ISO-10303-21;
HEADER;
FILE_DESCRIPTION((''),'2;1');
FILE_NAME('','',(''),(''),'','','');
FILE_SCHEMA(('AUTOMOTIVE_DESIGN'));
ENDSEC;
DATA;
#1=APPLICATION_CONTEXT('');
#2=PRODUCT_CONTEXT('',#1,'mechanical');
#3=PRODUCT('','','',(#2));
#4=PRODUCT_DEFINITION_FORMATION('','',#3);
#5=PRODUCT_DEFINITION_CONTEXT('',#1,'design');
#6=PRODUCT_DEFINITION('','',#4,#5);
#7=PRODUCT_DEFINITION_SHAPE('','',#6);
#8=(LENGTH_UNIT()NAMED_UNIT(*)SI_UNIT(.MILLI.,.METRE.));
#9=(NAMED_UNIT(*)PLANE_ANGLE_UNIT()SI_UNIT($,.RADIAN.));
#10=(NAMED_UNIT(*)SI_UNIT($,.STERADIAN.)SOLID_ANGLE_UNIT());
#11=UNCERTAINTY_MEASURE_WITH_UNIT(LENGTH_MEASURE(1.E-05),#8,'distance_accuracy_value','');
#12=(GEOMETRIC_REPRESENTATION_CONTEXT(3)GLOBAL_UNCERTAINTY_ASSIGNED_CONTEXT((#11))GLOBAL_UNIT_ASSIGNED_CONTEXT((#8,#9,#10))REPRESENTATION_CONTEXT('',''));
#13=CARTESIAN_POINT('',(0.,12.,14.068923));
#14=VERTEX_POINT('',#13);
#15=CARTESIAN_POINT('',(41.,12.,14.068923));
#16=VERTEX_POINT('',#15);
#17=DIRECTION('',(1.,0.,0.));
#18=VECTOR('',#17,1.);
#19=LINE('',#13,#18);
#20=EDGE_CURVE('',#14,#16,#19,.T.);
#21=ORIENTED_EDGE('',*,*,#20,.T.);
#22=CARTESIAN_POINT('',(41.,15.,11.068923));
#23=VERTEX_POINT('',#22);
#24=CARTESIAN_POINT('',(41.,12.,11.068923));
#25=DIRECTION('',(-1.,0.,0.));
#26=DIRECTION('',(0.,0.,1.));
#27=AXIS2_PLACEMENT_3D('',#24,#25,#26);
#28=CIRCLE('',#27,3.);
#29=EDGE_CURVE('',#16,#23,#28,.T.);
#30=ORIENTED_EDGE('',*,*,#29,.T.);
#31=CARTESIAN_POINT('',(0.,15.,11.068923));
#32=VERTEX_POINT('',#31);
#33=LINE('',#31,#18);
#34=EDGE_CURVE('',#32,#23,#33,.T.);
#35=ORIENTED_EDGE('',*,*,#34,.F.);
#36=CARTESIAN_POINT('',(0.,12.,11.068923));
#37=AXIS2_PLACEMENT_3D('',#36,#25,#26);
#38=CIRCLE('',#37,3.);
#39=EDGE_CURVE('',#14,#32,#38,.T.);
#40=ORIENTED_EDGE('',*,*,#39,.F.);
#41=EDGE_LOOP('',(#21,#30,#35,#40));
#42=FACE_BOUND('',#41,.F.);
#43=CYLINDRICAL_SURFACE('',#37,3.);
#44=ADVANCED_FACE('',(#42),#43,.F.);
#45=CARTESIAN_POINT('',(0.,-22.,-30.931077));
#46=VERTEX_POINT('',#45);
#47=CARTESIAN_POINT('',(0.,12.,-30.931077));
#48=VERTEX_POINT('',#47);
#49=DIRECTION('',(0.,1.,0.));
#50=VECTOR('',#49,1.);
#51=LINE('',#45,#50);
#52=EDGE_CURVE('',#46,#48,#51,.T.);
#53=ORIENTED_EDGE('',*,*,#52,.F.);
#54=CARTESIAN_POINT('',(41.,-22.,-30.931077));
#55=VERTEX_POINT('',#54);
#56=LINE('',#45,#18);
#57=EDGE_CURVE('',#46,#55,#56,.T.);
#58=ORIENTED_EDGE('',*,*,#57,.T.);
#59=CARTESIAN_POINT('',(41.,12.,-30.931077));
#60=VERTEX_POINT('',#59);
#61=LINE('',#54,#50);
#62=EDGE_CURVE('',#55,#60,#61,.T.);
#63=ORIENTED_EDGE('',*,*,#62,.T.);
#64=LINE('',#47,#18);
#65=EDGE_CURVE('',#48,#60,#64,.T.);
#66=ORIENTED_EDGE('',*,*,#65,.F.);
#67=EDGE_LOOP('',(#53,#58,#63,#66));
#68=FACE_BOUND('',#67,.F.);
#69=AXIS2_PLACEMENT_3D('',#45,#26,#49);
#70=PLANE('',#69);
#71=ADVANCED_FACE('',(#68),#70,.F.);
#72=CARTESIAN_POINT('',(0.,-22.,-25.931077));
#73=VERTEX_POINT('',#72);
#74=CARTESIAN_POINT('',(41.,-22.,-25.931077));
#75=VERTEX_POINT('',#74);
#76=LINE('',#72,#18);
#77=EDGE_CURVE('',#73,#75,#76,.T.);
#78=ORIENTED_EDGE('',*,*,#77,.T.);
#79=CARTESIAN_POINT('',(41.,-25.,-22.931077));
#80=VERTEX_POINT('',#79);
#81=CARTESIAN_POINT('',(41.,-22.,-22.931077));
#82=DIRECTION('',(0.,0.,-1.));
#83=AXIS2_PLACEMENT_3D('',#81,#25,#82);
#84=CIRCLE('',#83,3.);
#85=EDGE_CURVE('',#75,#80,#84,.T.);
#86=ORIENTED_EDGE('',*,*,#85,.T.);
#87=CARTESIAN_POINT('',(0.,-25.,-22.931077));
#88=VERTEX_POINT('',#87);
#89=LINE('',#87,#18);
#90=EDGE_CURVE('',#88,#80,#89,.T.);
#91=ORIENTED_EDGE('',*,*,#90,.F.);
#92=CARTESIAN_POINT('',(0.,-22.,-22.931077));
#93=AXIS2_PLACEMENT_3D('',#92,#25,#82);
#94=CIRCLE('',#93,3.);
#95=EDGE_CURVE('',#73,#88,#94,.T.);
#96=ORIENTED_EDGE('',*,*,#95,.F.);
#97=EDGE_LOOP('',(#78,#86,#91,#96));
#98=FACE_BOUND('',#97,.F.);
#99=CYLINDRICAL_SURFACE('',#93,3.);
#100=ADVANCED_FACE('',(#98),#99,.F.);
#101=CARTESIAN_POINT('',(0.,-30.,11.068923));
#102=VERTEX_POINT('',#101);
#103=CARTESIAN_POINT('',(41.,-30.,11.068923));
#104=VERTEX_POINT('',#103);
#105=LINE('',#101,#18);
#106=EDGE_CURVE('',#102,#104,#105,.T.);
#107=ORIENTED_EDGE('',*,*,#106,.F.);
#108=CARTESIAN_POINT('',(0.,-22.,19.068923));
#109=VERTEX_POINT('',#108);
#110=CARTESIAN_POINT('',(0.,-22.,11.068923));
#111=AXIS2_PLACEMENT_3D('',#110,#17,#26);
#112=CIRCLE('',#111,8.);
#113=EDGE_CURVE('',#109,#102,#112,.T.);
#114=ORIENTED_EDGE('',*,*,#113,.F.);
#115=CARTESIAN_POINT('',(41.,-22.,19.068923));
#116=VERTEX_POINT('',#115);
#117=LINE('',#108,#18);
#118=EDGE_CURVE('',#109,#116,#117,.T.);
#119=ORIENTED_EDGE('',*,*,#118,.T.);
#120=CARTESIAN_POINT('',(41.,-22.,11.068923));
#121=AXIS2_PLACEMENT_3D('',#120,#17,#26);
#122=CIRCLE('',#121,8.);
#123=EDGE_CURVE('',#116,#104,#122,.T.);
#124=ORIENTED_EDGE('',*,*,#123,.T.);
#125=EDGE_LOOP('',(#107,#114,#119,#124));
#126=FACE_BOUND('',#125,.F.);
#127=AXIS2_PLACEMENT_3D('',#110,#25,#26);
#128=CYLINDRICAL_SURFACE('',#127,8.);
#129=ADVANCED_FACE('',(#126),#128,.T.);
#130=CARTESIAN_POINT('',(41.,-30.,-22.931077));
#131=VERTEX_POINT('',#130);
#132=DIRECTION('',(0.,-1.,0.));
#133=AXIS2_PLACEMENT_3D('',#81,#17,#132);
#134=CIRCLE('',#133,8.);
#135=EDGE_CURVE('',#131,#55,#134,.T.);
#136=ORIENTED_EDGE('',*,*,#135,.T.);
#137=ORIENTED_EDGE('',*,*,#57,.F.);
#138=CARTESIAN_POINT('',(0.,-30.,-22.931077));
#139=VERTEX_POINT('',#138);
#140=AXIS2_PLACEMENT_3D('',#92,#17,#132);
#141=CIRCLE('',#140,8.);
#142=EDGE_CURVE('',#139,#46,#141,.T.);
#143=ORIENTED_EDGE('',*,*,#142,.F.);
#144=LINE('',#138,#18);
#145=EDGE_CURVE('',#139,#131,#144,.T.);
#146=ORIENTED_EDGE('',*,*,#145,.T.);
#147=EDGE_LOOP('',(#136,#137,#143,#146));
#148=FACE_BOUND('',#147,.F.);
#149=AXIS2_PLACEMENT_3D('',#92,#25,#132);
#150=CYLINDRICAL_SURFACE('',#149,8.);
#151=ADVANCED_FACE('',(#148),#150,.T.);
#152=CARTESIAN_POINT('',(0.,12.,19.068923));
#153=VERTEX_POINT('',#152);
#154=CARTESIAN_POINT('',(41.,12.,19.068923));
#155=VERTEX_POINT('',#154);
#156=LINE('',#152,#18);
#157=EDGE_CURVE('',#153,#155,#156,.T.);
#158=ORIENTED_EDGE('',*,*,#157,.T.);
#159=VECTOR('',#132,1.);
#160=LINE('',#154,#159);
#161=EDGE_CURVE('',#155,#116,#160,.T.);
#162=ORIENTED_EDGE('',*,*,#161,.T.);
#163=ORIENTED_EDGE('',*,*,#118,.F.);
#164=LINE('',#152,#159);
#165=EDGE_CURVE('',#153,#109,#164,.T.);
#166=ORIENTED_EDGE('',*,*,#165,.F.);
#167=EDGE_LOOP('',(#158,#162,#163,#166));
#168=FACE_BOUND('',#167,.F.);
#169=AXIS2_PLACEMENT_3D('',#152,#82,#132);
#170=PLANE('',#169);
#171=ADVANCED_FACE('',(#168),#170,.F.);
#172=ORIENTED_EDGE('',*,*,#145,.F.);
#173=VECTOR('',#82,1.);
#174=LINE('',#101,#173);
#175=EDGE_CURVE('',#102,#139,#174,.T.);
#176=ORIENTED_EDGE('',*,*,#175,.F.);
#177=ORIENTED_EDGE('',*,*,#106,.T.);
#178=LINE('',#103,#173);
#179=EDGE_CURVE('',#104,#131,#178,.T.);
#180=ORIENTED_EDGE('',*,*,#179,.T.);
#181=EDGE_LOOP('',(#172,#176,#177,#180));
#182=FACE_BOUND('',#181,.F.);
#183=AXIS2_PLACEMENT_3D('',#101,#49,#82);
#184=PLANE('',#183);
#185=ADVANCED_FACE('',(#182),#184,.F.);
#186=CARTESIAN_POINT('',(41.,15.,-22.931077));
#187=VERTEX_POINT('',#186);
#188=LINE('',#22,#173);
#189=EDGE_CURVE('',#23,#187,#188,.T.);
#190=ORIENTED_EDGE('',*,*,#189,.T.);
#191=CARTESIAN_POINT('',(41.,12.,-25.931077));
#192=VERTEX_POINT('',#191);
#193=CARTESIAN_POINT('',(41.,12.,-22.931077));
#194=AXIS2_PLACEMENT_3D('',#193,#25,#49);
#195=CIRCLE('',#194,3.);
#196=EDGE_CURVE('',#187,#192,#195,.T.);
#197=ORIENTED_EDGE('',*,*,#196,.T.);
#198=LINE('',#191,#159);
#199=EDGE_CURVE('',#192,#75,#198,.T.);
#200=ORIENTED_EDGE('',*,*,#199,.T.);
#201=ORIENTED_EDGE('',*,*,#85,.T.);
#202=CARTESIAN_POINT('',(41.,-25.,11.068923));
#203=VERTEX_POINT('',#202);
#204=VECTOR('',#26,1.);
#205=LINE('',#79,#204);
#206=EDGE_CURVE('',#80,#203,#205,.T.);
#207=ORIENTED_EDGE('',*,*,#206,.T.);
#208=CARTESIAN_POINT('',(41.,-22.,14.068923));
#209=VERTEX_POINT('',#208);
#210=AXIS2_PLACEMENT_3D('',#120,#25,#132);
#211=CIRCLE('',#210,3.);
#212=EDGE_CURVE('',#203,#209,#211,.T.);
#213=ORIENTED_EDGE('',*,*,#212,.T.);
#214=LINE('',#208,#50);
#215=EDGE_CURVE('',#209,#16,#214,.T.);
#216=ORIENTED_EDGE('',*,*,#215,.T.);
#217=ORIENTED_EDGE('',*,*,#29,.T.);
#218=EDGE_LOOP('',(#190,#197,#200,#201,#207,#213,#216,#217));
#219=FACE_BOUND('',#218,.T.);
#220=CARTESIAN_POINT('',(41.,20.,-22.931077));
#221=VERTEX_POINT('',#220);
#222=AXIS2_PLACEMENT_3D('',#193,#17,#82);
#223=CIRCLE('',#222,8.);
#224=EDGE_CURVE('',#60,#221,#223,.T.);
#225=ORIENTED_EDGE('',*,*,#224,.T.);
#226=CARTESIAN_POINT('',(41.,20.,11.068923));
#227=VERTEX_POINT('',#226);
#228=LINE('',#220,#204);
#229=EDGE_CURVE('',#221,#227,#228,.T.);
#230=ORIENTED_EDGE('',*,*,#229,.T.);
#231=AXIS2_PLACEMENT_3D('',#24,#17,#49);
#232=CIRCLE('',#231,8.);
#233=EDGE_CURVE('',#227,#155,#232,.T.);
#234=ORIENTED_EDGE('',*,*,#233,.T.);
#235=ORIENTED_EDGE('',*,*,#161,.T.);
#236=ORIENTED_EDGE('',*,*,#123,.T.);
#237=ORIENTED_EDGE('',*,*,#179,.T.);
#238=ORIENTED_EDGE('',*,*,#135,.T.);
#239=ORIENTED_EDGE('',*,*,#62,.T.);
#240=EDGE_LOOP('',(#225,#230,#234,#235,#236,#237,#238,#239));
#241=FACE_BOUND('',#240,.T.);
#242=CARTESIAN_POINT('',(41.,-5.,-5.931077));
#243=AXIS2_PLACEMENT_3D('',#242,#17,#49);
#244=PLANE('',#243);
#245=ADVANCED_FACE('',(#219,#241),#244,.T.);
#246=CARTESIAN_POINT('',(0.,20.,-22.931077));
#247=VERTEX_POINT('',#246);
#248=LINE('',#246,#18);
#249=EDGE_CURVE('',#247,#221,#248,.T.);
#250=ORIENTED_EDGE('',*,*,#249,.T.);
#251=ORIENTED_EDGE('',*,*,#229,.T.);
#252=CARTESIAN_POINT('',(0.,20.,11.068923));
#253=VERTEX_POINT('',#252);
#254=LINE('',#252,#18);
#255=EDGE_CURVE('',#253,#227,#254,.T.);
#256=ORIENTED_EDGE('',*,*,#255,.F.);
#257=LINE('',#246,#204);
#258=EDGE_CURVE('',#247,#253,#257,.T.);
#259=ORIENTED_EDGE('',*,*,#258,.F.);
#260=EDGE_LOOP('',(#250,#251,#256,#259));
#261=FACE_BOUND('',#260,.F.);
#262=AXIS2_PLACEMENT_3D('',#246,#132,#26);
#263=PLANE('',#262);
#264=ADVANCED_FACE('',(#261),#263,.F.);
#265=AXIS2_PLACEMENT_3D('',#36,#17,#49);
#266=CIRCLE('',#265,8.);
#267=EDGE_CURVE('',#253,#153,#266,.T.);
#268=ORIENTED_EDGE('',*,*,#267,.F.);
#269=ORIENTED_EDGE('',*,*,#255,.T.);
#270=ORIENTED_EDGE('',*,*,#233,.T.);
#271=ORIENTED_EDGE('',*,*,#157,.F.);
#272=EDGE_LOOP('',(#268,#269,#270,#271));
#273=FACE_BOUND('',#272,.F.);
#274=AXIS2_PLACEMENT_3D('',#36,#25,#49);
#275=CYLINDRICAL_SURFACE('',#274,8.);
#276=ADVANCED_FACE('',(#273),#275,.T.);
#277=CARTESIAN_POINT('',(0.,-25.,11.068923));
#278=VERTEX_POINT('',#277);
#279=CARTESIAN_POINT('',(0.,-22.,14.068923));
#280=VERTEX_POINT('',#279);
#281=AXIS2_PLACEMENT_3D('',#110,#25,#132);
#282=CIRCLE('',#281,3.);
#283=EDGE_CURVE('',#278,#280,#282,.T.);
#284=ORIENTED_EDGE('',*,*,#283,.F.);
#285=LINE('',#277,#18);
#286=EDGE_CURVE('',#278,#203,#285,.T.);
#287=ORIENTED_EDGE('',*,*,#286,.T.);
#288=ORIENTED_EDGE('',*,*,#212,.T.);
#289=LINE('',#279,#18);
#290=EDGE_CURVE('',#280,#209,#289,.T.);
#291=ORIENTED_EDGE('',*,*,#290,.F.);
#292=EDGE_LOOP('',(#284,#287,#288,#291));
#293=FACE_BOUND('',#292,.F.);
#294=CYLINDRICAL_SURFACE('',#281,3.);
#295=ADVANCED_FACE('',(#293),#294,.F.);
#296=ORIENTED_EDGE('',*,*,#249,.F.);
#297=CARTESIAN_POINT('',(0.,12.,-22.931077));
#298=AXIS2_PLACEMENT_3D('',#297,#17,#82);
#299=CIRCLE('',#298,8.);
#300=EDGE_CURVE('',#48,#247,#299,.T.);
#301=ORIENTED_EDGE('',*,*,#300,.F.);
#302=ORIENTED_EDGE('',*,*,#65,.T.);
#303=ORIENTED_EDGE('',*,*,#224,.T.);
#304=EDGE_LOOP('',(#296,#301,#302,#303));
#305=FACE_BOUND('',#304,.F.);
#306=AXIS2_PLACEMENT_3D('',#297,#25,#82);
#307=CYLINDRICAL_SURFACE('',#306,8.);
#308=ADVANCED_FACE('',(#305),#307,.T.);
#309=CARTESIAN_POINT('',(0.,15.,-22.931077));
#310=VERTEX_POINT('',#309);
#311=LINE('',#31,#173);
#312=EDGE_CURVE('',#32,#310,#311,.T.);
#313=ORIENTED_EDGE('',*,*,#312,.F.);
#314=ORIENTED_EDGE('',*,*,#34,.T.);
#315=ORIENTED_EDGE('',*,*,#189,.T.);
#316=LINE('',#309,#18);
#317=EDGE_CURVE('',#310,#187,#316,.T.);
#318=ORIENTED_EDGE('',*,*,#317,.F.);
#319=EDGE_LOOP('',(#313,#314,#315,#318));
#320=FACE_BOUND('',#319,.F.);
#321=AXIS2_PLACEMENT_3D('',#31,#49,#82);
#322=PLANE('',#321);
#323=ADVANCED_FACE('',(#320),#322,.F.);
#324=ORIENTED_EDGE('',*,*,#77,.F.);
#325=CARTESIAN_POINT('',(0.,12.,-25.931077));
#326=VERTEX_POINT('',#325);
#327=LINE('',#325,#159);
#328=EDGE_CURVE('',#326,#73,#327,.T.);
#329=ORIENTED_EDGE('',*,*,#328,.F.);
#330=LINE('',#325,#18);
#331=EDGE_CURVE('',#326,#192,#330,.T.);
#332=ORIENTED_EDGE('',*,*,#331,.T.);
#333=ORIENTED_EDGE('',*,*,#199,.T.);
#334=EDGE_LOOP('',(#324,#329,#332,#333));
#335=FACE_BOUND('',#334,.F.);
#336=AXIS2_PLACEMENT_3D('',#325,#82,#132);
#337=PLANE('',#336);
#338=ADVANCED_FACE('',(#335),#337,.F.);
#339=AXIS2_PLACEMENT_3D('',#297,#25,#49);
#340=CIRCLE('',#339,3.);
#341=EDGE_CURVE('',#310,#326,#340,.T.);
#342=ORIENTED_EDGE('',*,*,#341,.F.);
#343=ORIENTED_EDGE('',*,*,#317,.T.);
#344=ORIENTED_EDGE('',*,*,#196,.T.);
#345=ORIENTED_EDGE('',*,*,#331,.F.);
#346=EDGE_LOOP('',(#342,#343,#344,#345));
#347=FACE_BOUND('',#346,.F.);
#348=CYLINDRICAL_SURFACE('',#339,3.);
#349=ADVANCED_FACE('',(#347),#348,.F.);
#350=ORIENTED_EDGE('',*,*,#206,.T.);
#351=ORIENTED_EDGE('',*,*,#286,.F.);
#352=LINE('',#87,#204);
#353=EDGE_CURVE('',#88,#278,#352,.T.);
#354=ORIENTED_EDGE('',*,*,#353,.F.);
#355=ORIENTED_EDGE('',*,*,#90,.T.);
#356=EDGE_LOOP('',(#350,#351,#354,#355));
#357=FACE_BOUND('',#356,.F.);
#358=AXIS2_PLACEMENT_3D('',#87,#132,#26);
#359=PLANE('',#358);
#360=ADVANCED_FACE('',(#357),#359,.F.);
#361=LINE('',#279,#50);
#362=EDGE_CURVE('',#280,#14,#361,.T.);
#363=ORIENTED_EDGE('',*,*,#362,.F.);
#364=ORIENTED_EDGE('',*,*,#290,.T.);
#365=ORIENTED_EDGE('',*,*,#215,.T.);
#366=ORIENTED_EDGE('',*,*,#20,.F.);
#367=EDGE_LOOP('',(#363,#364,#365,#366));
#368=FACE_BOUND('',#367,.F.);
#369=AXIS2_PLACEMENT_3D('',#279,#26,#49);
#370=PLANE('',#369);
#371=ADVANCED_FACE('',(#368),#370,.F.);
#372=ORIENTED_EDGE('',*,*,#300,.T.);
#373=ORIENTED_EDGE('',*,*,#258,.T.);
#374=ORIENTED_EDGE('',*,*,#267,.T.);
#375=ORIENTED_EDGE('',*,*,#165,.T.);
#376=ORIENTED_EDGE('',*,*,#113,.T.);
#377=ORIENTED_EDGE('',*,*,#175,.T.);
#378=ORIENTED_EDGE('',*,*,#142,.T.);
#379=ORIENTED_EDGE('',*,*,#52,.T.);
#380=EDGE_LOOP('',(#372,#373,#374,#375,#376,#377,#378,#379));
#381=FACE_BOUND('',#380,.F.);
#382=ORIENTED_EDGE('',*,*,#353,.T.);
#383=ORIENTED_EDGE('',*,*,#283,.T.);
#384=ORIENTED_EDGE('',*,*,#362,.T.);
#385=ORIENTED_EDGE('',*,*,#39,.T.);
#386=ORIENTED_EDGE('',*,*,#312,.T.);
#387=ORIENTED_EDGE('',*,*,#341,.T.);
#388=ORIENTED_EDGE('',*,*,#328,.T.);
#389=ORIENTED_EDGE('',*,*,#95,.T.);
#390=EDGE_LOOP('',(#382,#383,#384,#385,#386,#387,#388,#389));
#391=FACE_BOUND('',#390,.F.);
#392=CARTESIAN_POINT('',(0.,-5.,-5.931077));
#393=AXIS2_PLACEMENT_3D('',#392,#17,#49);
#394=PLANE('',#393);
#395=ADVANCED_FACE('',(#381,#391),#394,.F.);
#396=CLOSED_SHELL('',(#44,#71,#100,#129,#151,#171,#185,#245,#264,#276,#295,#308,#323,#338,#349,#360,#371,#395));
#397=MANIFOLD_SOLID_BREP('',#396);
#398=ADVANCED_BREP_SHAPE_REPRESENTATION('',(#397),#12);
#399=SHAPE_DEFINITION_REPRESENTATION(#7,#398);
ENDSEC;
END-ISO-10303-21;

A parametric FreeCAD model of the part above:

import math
import FreeCAD as App
import Part
import Sketcher

V = App.Vector
Q = App.Units.Quantity

doc = App.newDocument("Part")
body = doc.addObject("PartDesign::Body", "Body")

sketch1 = body.newObject("Sketcher::SketchObject", "Sketch")
sketch1.AttachmentSupport = (doc.getObject("YZ_Plane"), [""])
sketch1.MapMode = "FlatFace"
sketch1.addGeometry(Part.LineSegment(V(20, -22.931077, 0), V(20, 11.068923, 0)), False)
sketch1.addGeometry(Part.ArcOfCircle(Part.Circle(V(12, 11.068923, 0), V(0, 0, 1), 8), math.radians(0), math.radians(90)), False)
sketch1.addGeometry(Part.LineSegment(V(12, 19.068923, 0), V(-22, 19.068923, 0)), False)
sketch1.addGeometry(Part.ArcOfCircle(Part.Circle(V(-22, 11.068923, 0), V(0, 0, 1), 8), math.radians(90), math.radians(180)), False)
sketch1.addGeometry(Part.LineSegment(V(-30, 11.068923, 0), V(-30, -22.931077, 0)), False)
sketch1.addGeometry(Part.ArcOfCircle(Part.Circle(V(-22, -22.931077, 0), V(0, 0, 1), 8), math.radians(180), math.radians(270)), False)
sketch1.addGeometry(Part.LineSegment(V(-22, -30.931077, 0), V(12, -30.931077, 0)), False)
sketch1.addGeometry(Part.ArcOfCircle(Part.Circle(V(12, -22.931077, 0), V(0, 0, 1), 8), math.radians(-90), math.radians(0)), False)
sketch1.addGeometry(Part.ArcOfCircle(Part.Circle(V(-22, -22.931077, 0), V(0, 0, 1), 3), math.radians(180), math.radians(270)), False)
sketch1.addGeometry(Part.LineSegment(V(-25, -22.931077, 0), V(-25, 11.068923, 0)), False)
sketch1.addGeometry(Part.ArcOfCircle(Part.Circle(V(-22, 11.068923, 0), V(0, 0, 1), 3), math.radians(90), math.radians(180)), False)
sketch1.addGeometry(Part.LineSegment(V(-22, 14.068923, 0), V(12, 14.068923, 0)), False)
sketch1.addGeometry(Part.ArcOfCircle(Part.Circle(V(12, 11.068923, 0), V(0, 0, 1), 3), math.radians(0), math.radians(90)), False)
sketch1.addGeometry(Part.LineSegment(V(15, 11.068923, 0), V(15, -22.931077, 0)), False)
sketch1.addGeometry(Part.ArcOfCircle(Part.Circle(V(12, -22.931077, 0), V(0, 0, 1), 3), math.radians(-90), math.radians(0)), False)
sketch1.addGeometry(Part.LineSegment(V(12, -25.931077, 0), V(-22, -25.931077, 0)), False)
sketch1.addConstraint(Sketcher.Constraint("Tangent", 0, 2, 1, 1))
sketch1.addConstraint(Sketcher.Constraint("Tangent", 1, 2, 2, 1))
sketch1.addConstraint(Sketcher.Constraint("Tangent", 2, 2, 3, 1))
sketch1.addConstraint(Sketcher.Constraint("Tangent", 3, 2, 4, 1))
sketch1.addConstraint(Sketcher.Constraint("Tangent", 4, 2, 5, 1))
sketch1.addConstraint(Sketcher.Constraint("Tangent", 5, 2, 6, 1))
sketch1.addConstraint(Sketcher.Constraint("Tangent", 6, 2, 7, 1))
sketch1.addConstraint(Sketcher.Constraint("Tangent", 7, 2, 0, 1))
sketch1.addConstraint(Sketcher.Constraint("Tangent", 8, 1, 9, 1))
sketch1.addConstraint(Sketcher.Constraint("Tangent", 9, 2, 10, 2))
sketch1.addConstraint(Sketcher.Constraint("Tangent", 10, 1, 11, 1))
sketch1.addConstraint(Sketcher.Constraint("Tangent", 11, 2, 12, 2))
sketch1.addConstraint(Sketcher.Constraint("Tangent", 12, 1, 13, 1))
sketch1.addConstraint(Sketcher.Constraint("Tangent", 13, 2, 14, 2))
sketch1.addConstraint(Sketcher.Constraint("Tangent", 14, 1, 15, 1))
sketch1.addConstraint(Sketcher.Constraint("Tangent", 15, 2, 8, 2))
sketch1.addConstraint(Sketcher.Constraint("Vertical", 0))
sketch1.addConstraint(Sketcher.Constraint("Horizontal", 2))
sketch1.addConstraint(Sketcher.Constraint("Vertical", 4))
sketch1.addConstraint(Sketcher.Constraint("Horizontal", 6))
sketch1.addConstraint(Sketcher.Constraint("Vertical", 9))
sketch1.addConstraint(Sketcher.Constraint("Horizontal", 11))
sketch1.addConstraint(Sketcher.Constraint("Vertical", 13))
sketch1.addConstraint(Sketcher.Constraint("Horizontal", 15))
sketch1.addConstraint(Sketcher.Constraint("Coincident", 8, 3, 5, 3))
sketch1.addConstraint(Sketcher.Constraint("Coincident", 10, 3, 3, 3))
sketch1.addConstraint(Sketcher.Constraint("Coincident", 12, 3, 1, 3))
sketch1.addConstraint(Sketcher.Constraint("Equal", 1, 3))
sketch1.addConstraint(Sketcher.Constraint("Equal", 3, 5))
sketch1.addConstraint(Sketcher.Constraint("Equal", 5, 7))
sketch1.addConstraint(Sketcher.Constraint("Equal", 12, 14))
sketch1.addConstraint(Sketcher.Constraint("Equal", 15, 0))
sketch1.addConstraint(Sketcher.Constraint("Radius", 1, Q("8 mm")))
sketch1.addConstraint(Sketcher.Constraint("Radius", 8, Q("3 mm")))
sketch1.addConstraint(Sketcher.Constraint("DistanceX", 2, 2, 2, 1, Q("34 mm")))
sketch1.addConstraint(Sketcher.Constraint("DistanceX", -1, 1, 1, 3, Q("12 mm")))
sketch1.addConstraint(Sketcher.Constraint("DistanceY", -1, 1, 1, 3, Q("11.068923 mm")))
pad1 = body.newObject("PartDesign::Pad", "Pad")
pad1.Profile = sketch1
pad1.Length = 41

doc.recompute()
